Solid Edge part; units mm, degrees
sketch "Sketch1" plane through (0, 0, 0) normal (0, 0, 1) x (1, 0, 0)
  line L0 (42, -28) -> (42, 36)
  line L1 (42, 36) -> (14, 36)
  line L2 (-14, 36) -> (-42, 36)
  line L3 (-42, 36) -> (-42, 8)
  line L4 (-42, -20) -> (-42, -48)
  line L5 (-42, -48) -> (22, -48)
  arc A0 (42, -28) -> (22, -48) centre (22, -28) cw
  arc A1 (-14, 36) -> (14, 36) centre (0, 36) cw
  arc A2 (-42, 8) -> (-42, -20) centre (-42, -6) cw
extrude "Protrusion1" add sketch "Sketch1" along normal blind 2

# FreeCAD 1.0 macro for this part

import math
import FreeCAD as App
import Part
import Sketcher

V = App.Vector
Q = App.Units.Quantity

doc = App.newDocument("Part")
params = doc.addObject("Spreadsheet::Sheet", "Params")
for row, (alias, value) in enumerate([
    ("sketch1_radius", "20 mm"),
    ("sketch1_radius2", "14 mm"),
    ("sketch1_width", "28 mm"),
    ("pad1_length", "2 mm"),
], start=1):
    params.set(f"A{row}", alias)
    params.set(f"B{row}", "=" + value)
    params.setAlias(f"B{row}", alias)

body = doc.addObject("PartDesign::Body", "Body")

# Sketch on XY plane
sketch1 = body.newObject("Sketcher::SketchObject", "Sketch")
sketch1.AttachmentSupport = (doc.getObject("XY_Plane"), [""])
sketch1.MapMode = "FlatFace"
sketch1.addGeometry(Part.ArcOfCircle(Part.Circle(V(22, -28, 0), V(0, 0, 1), 20), math.radians(-90), math.radians(0)), False)
sketch1.addGeometry(Part.LineSegment(V(42, -28, 0), V(42, 36, 0)), False)
sketch1.addGeometry(Part.LineSegment(V(42, 36, 0), V(14, 36, 0)), False)
sketch1.addGeometry(Part.ArcOfCircle(Part.Circle(V(0, 36, 0), V(0, 0, 1), 14), math.radians(0), math.radians(180)), False)
sketch1.addGeometry(Part.LineSegment(V(-14, 36, 0), V(-42, 36, 0)), False)
sketch1.addGeometry(Part.LineSegment(V(-42, 36, 0), V(-42, 8, 0)), False)
sketch1.addGeometry(Part.ArcOfCircle(Part.Circle(V(-42, -6, 0), V(0, 0, 1), 14), math.radians(-90), math.radians(90)), False)
sketch1.addGeometry(Part.LineSegment(V(-42, -20, 0), V(-42, -48, 0)), False)
sketch1.addGeometry(Part.LineSegment(V(-42, -48, 0), V(22, -48, 0)), False)
sketch1.addConstraint(Sketcher.Constraint("Tangent", 0, 2, 1, 1))
sketch1.addConstraint(Sketcher.Constraint("Coincident", 1, 2, 2, 1))
sketch1.addConstraint(Sketcher.Constraint("Coincident", 2, 2, 3, 1))
sketch1.addConstraint(Sketcher.Constraint("Coincident", 3, 2, 4, 1))
sketch1.addConstraint(Sketcher.Constraint("Coincident", 4, 2, 5, 1))
sketch1.addConstraint(Sketcher.Constraint("Coincident", 5, 2, 6, 2))
sketch1.addConstraint(Sketcher.Constraint("Coincident", 6, 1, 7, 1))
sketch1.addConstraint(Sketcher.Constraint("Coincident", 7, 2, 8, 1))
sketch1.addConstraint(Sketcher.Constraint("Tangent", 8, 2, 0, 1))
sketch1.addConstraint(Sketcher.Constraint("Vertical", 1))
sketch1.addConstraint(Sketcher.Constraint("Horizontal", 2))
sketch1.addConstraint(Sketcher.Constraint("Horizontal", 4))
sketch1.addConstraint(Sketcher.Constraint("Vertical", 5))
sketch1.addConstraint(Sketcher.Constraint("Vertical", 7))
sketch1.addConstraint(Sketcher.Constraint("Horizontal", 8))
sketch1.addConstraint(Sketcher.Constraint("Equal", 3, 6))
sketch1.addConstraint(Sketcher.Constraint("Symmetric", 2, 2, 3, 2, -2))
sketch1.addConstraint(Sketcher.Constraint("Horizontal", 3, 3, 1, 2))
sketch1.addConstraint(Sketcher.Constraint("Vertical", 6, 3, 4, 2))
sketch1.addConstraint(Sketcher.Constraint("Vertical", 5, 2, 6, 1))
sketch1.addConstraint(Sketcher.Constraint("Equal", 2, 4))
sketch1.addConstraint(Sketcher.Constraint("Equal", 8, 1))
sketch1.addConstraint(Sketcher.Constraint("Equal", 4, 5))
sketch1.addConstraint(Sketcher.Constraint("Radius", 0, Q("20 mm")))
sketch1.addConstraint(Sketcher.Constraint("Radius", 3, Q("14 mm")))
sketch1.addConstraint(Sketcher.Constraint("DistanceX", 2, 2, 2, 1, Q("28 mm")))
sketch1.addConstraint(Sketcher.Constraint("DistanceY", 0, 3, -1, 1, Q("28 mm")))
sketch1.setExpression("Constraints[23]", "Params.sketch1_radius")
sketch1.setExpression("Constraints[24]", "Params.sketch1_radius2")
sketch1.setExpression("Constraints[25]", "Params.sketch1_width")
pad1 = body.newObject("PartDesign::Pad", "Pad")
pad1.Profile = sketch1
pad1.setExpression("Length", "Params.pad1_length")

doc.recompute()
